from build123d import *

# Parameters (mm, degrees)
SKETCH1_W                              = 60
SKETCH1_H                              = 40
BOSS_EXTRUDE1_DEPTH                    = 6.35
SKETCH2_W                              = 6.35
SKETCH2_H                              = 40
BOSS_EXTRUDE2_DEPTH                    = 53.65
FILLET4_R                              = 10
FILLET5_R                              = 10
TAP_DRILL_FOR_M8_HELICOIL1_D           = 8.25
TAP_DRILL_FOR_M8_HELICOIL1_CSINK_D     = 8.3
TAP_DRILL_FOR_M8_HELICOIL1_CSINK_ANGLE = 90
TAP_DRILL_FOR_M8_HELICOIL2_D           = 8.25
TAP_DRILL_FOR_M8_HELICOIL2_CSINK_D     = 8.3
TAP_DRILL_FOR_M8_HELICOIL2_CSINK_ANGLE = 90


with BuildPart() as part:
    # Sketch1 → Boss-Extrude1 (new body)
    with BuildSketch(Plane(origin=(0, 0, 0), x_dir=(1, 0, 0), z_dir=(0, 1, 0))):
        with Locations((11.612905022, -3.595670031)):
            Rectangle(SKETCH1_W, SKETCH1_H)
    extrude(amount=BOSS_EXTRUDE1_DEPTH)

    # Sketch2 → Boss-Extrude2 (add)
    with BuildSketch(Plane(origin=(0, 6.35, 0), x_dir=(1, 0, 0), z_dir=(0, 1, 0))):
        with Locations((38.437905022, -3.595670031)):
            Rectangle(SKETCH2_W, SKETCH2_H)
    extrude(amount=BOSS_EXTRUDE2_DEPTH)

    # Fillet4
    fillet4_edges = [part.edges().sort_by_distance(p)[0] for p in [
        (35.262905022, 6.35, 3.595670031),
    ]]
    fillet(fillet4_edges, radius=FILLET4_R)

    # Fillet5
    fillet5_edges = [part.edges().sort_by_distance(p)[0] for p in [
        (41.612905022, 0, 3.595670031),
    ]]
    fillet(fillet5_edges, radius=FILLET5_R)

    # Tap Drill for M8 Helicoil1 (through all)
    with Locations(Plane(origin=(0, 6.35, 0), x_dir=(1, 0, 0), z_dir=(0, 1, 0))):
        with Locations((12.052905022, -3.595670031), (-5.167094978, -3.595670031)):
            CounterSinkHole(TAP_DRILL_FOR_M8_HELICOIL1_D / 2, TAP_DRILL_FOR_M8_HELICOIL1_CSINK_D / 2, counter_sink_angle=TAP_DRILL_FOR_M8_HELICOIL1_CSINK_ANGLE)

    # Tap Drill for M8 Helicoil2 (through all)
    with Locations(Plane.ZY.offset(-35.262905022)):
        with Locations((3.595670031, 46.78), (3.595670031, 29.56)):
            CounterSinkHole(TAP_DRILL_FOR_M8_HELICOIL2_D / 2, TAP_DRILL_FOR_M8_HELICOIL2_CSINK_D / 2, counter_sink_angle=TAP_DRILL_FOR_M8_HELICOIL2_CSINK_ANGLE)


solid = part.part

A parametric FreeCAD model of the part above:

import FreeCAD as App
import Part
import Sketcher

V = App.Vector


def edges_at(feature, points):
    """Names of the edges that pass closest to the given points."""
    edges = feature.Shape.Edges
    near = lambda p: min(range(len(edges)), key=lambda i: edges[i].distToShape(Part.Vertex(*p))[0])
    return sorted({f"Edge{near(p) + 1}" for p in points})


def add_polygon(sketch, points):
    """Adds a closed chain of lines whose ends are joined by coincident constraints."""
    first, n = sketch.GeometryCount, len(points)
    for a, b in zip(points, points[1:] + points[:1]):
        sketch.addGeometry(Part.LineSegment(App.Vector(*a, 0), App.Vector(*b, 0)), False)
    for i in range(n):
        sketch.addConstraint(Sketcher.Constraint("Coincident", first + i, 2, first + (i + 1) % n, 1))

doc = App.newDocument("Part")
body = doc.addObject("PartDesign::Body", "Body")

# Sketch on XZ plane
sketch1 = doc.addObject("Sketcher::SketchObject", "Sketch")
body.addObject(sketch1)
sketch1.AttachmentSupport = (doc.XZ_Plane, [""])
sketch1.MapMode = "FlatFace"
add_polygon(sketch1, [(-18, -16), (-18, 24), (42, 24), (42, -16)])  # lines 0-3
sketch1.addConstraint(Sketcher.Constraint("Vertical", 0))
sketch1.addConstraint(Sketcher.Constraint("Horizontal", 1))
sketch1.addConstraint(Sketcher.Constraint("Vertical", 2))
sketch1.addConstraint(Sketcher.Constraint("Horizontal", 3))
sketch1.addConstraint(Sketcher.Constraint("DistanceX", 1, 1, 1, 2, 60.0))
sketch1.addConstraint(Sketcher.Constraint("DistanceY", 0, 1, 0, 2, 40.0))
sketch1.addConstraint(Sketcher.Constraint("DistanceY", -1, 1, 0, 2, 23.59567))
sketch1.addConstraint(Sketcher.Constraint("DistanceX", 0, 2, -1, 1, 18.387095))
pad1 = doc.addObject("PartDesign::Pad", "Pad")
body.addObject(pad1)
pad1.Profile = sketch1
pad1.Length = 6.35
pad1.Reversed = True

# Sketch on XZ plane
sketch2 = doc.addObject("Sketcher::SketchObject", "Sketch001")
body.addObject(sketch2)
sketch2.AttachmentSupport = (doc.XZ_Plane, [""])
sketch2.MapMode = "FlatFace"
sketch2.AttachmentOffset = App.Placement(V(0, 0, -6.35), App.Rotation())
add_polygon(sketch2, [(35, -16), (35, 24), (42, 24), (42, -16)])  # lines 0-3
sketch2.addConstraint(Sketcher.Constraint("Vertical", 0))
sketch2.addConstraint(Sketcher.Constraint("Horizontal", 1))
sketch2.addConstraint(Sketcher.Constraint("Vertical", 2))
sketch2.addConstraint(Sketcher.Constraint("Horizontal", 3))
sketch2.addConstraint(Sketcher.Constraint("DistanceY", 0, 1, 0, 2, 40.0))
sketch2.addConstraint(Sketcher.Constraint("DistanceX", 1, 1, 1, 2, 6.35))
sketch2.addConstraint(Sketcher.Constraint("DistanceY", -1, 1, 0, 2, 23.59567))
sketch2.addConstraint(Sketcher.Constraint("DistanceX", -1, 1, 0, 2, 35.262905))
pad2 = doc.addObject("PartDesign::Pad", "Pad001")
body.addObject(pad2)
pad2.Profile = sketch2
pad2.Length = 53.65
pad2.Reversed = True
doc.recompute()

fillet = doc.addObject("PartDesign::Fillet", "Fillet")
body.addObject(fillet)
fillet.Base = (pad2, edges_at(pad2, [(35.263, 6.35, 3.596)]))
fillet.Radius = 10
doc.recompute()

fillet2 = doc.addObject("PartDesign::Fillet", "Fillet001")
body.addObject(fillet2)
fillet2.Base = (fillet, edges_at(fillet, [(41.613, 0, 3.596)]))
fillet2.Radius = 10

# Sketch on XZ plane
sketch3 = doc.addObject("Sketcher::SketchObject", "Sketch002")
body.addObject(sketch3)
sketch3.AttachmentSupport = (doc.XZ_Plane, [""])
sketch3.MapMode = "FlatFace"
sketch3.AttachmentOffset = App.Placement(V(0, 0, -6.35), App.Rotation())
sketch3.addGeometry(Part.Circle(V(12.1, 3.6, 0), V(0, 0, 1), 4.1), False)
sketch3.addGeometry(Part.Circle(V(-5.2, 3.6, 0), V(0, 0, 1), 4.1), False)
sketch3.addConstraint(Sketcher.Constraint("Equal", 0, 1))
sketch3.addConstraint(Sketcher.Constraint("Horizontal", 0, 3, 1, 3))
sketch3.addConstraint(Sketcher.Constraint("Diameter", 0, 8.25))
sketch3.addConstraint(Sketcher.Constraint("DistanceX", 1, 3, 0, 3, 17.22))
sketch3.addConstraint(Sketcher.Constraint("DistanceY", -1, 1, 0, 3, 3.59567))
sketch3.addConstraint(Sketcher.Constraint("DistanceX", -1, 1, 0, 3, 12.052905))
doc.recompute()
hole = doc.addObject("PartDesign::Hole", "Hole")
body.addObject(hole)
hole.Profile = sketch3
hole.ThreadType = "None"
hole.Diameter = 8.25
hole.DepthType = "ThroughAll"
hole.HoleCutType = "Countersink"
hole.HoleCutDiameter = 8.3
hole.HoleCutCountersinkAngle = 90
hole.Reversed = True

# Sketch on YZ plane
sketch4 = doc.addObject("Sketcher::SketchObject", "Sketch003")
body.addObject(sketch4)
sketch4.AttachmentSupport = (doc.YZ_Plane, [""])
sketch4.MapMode = "FlatFace"
sketch4.AttachmentOffset = App.Placement(V(0, 0, 35.262905), App.Rotation())
sketch4.addGeometry(Part.Circle(V(46.8, 3.6, 0), V(0, 0, 1), 4.1), False)
sketch4.addGeometry(Part.Circle(V(29.6, 3.6, 0), V(0, 0, 1), 4.1), False)
sketch4.addConstraint(Sketcher.Constraint("Equal", 0, 1))
sketch4.addConstraint(Sketcher.Constraint("Horizontal", 0, 3, 1, 3))
sketch4.addConstraint(Sketcher.Constraint("Diameter", 0, 8.25))
sketch4.addConstraint(Sketcher.Constraint("DistanceX", -1, 1, 0, 3, 46.78))
sketch4.addConstraint(Sketcher.Constraint("DistanceX", -1, 1, 1, 3, 29.56))
sketch4.addConstraint(Sketcher.Constraint("DistanceY", -1, 1, 0, 3, 3.59567))
doc.recompute()
hole2 = doc.addObject("PartDesign::Hole", "Hole001")
body.addObject(hole2)
hole2.Profile = sketch4
hole2.ThreadType = "None"
hole2.Diameter = 8.25
hole2.DepthType = "ThroughAll"
hole2.HoleCutType = "Countersink"
hole2.HoleCutDiameter = 8.3
hole2.HoleCutCountersinkAngle = 90
hole2.Reversed = True

doc.recompute()
